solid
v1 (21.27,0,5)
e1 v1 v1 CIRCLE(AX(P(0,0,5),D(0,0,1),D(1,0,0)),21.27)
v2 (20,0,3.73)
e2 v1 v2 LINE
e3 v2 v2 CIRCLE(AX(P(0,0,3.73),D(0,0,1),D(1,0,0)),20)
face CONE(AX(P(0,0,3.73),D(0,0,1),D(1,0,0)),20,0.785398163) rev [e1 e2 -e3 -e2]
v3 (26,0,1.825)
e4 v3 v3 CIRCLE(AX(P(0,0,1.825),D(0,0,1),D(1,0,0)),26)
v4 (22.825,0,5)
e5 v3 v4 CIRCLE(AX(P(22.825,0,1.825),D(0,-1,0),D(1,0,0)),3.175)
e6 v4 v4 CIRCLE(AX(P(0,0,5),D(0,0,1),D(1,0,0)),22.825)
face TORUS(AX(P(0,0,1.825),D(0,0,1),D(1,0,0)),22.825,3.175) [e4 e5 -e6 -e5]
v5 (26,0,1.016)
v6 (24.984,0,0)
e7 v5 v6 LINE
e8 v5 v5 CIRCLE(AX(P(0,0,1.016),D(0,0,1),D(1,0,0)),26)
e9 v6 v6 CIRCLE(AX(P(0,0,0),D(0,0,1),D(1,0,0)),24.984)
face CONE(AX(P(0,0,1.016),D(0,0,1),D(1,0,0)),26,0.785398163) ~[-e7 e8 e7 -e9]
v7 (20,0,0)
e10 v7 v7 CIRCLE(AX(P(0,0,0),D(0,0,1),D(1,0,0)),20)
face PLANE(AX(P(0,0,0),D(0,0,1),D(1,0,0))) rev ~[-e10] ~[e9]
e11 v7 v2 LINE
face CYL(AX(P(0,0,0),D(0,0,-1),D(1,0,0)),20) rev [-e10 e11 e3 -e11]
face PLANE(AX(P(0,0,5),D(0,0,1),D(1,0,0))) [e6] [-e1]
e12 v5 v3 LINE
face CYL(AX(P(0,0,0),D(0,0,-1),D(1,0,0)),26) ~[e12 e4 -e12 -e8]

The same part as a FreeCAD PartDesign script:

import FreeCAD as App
import Part
import Sketcher
from FreeCAD import Vector
Q = App.Units.Quantity


def edges_at(feature, points):
    """Names of the edges that pass closest to the given points."""
    edges = feature.Shape.Edges
    near = lambda p: min(range(len(edges)), key=lambda i: edges[i].distToShape(Part.Vertex(*p))[0])
    return sorted({f"Edge{near(p) + 1}" for p in points})

doc = App.newDocument("Part")
body = doc.addObject("PartDesign::Body", "Body")

# Sketch on XY plane
sketch1 = body.newObject("Sketcher::SketchObject", "Sketch")
sketch1.AttachmentSupport = (doc.getObject("XY_Plane"), [""])
sketch1.MapMode = "FlatFace"
sketch1.addGeometry([
    Part.Circle(Vector(0, 0, 0), Vector(0, 0, 1), 23),
    Part.Circle(Vector(0, 0, 0), Vector(0, 0, 1), 20),
], False)
sketch1.addConstraint([
    Sketcher.Constraint("Coincident", 0, 3, -1, 1),
    Sketcher.Constraint("Coincident", 1, 3, -1, 1),
    Sketcher.Constraint("Diameter", 0, Q("46 mm")),
    Sketcher.Constraint("Diameter", 1, Q("40 mm")),
])
pad1 = body.newObject("PartDesign::Pad", "Pad")
pad1.Profile = sketch1
pad1.Length = 5

# Sketch on XY plane
sketch2 = body.newObject("Sketcher::SketchObject", "Sketch001")
sketch2.AttachmentSupport = (doc.getObject("XY_Plane"), [""])
sketch2.MapMode = "FlatFace"
sketch2.addGeometry([
    Part.Circle(Vector(0, 0, 0), Vector(0, 0, 1), 26),
    Part.Circle(Vector(0, 0, 0), Vector(0, 0, 1), 23),
], False)
sketch2.addConstraint([
    Sketcher.Constraint("Coincident", 0, 3, -1, 1),
    Sketcher.Constraint("Coincident", 1, 3, -1, 1),
    Sketcher.Constraint("Diameter", 0, Q("52 mm")),
    Sketcher.Constraint("Diameter", 1, Q("46 mm")),
])
pad2 = body.newObject("PartDesign::Pad", "Pad001")
pad2.Profile = sketch2
pad2.Length = 5
doc.recompute()

fillet = body.newObject("PartDesign::Fillet", "Fillet")
fillet.Base = (pad2, edges_at(pad2, [(-26, 0, 5)]))
fillet.Radius = 3.175
doc.recompute()

chamfer = body.newObject("PartDesign::Chamfer", "Chamfer")
chamfer.Base = (fillet, edges_at(fillet, [(-20, 0, 5)]))
chamfer.Size = 1.27
doc.recompute()

chamfer2 = body.newObject("PartDesign::Chamfer", "Chamfer001")
chamfer2.Base = (chamfer, edges_at(chamfer, [(-26, 0, 0)]))
chamfer2.Size = 1.016

doc.recompute()
